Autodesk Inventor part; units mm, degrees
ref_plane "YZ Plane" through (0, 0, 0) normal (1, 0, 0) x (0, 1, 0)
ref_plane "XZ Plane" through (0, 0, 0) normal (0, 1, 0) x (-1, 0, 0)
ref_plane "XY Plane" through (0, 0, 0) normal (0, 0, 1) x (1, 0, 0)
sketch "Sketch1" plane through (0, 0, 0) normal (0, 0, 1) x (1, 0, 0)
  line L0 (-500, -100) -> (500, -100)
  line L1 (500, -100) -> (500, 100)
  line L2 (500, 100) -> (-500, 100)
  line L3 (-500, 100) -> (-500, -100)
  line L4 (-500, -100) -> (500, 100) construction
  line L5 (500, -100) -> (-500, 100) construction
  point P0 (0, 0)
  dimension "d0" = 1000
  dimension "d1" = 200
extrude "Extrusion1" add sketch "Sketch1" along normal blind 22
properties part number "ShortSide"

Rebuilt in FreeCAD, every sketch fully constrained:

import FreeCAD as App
import Part
import Sketcher
Q = App.Units.Quantity


def add_polygon(sketch, points):
    """Adds a closed chain of lines whose ends are joined by coincident constraints."""
    first, n = sketch.GeometryCount, len(points)
    for a, b in zip(points, points[1:] + points[:1]):
        sketch.addGeometry(Part.LineSegment(App.Vector(*a, 0), App.Vector(*b, 0)), False)
    for i in range(n):
        sketch.addConstraint(Sketcher.Constraint("Coincident", first + i, 2, first + (i + 1) % n, 1))

doc = App.newDocument("Part")
params = doc.addObject("Spreadsheet::Sheet", "Params")
for row, (alias, value) in enumerate([
    ("sketch1_width", "1000 mm"),
    ("sketch1_height", "200 mm"),
    ("pad1_length", "22 mm"),
], start=1):
    params.set(f"A{row}", alias)
    params.set(f"B{row}", "=" + value)
    params.setAlias(f"B{row}", alias)

body = doc.addObject("PartDesign::Body", "Body")

# Sketch on XY plane
sketch1 = body.newObject("Sketcher::SketchObject", "Sketch")
sketch1.AttachmentSupport = (doc.getObject("XY_Plane"), [""])
sketch1.MapMode = "FlatFace"
add_polygon(sketch1, [(-500, 100), (-500, -100), (500, -100), (500, 100)])  # lines 0-3
sketch1.addConstraint([
    Sketcher.Constraint("Vertical", 0),
    Sketcher.Constraint("Horizontal", 1),
    Sketcher.Constraint("Vertical", 2),
    Sketcher.Constraint("Horizontal", 3),
    Sketcher.Constraint("Symmetric", 0, 2, 2, 2, -1, 1),
    Sketcher.Constraint("DistanceX", 1, 1, 1, 2, Q("1000 mm")),
    Sketcher.Constraint("DistanceY", 0, 2, 0, 1, Q("200 mm")),
])
sketch1.setExpression("Constraints[9]", "Params.sketch1_width")
sketch1.setExpression("Constraints[10]", "Params.sketch1_height")
pad1 = body.newObject("PartDesign::Pad", "Pad")
pad1.Profile = sketch1
pad1.setExpression("Length", "Params.pad1_length")

doc.recompute()
